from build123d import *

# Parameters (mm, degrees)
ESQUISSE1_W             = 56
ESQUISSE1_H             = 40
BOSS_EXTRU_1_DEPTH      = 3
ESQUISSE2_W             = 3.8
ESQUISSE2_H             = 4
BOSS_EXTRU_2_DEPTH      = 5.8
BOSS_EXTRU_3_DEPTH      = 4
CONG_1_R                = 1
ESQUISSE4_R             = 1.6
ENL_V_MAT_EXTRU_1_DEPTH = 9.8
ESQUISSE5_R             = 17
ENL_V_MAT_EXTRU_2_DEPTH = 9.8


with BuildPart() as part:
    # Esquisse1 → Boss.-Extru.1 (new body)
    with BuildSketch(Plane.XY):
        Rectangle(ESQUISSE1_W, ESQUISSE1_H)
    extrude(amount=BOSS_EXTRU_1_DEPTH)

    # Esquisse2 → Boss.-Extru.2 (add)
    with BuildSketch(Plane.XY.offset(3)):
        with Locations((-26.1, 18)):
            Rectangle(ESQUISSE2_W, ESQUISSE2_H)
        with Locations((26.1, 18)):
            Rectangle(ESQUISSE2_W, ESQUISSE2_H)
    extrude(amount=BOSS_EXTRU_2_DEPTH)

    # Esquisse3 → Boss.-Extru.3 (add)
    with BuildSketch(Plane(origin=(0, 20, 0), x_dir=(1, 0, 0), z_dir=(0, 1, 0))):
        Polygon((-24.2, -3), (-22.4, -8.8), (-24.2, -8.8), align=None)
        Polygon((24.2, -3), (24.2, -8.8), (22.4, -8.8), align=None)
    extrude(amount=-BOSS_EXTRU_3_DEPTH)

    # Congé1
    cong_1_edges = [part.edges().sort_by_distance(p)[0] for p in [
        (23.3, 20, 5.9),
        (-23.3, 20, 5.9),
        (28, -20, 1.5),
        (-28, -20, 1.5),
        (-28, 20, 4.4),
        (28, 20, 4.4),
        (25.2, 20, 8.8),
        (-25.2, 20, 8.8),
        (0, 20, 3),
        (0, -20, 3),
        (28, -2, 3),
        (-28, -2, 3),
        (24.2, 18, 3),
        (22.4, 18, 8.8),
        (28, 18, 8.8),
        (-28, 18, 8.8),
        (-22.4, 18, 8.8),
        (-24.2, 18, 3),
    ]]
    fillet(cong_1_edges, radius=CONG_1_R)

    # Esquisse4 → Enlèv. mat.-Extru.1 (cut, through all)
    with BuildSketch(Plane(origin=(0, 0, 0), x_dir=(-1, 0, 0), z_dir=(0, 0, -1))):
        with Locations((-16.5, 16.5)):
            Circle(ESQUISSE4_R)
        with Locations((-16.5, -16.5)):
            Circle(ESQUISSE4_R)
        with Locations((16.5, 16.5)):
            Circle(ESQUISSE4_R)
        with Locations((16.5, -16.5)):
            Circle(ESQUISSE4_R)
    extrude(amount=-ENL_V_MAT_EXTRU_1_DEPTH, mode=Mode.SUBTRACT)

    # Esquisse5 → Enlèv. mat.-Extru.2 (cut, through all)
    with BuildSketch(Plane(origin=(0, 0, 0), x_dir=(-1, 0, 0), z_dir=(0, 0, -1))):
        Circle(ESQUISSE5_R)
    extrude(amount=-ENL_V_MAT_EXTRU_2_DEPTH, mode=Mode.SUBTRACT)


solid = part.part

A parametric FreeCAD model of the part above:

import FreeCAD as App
import Part
import Sketcher
Q = App.Units.Quantity


def edges_at(feature, points):
    """Names of the edges that pass closest to the given points."""
    edges = feature.Shape.Edges
    near = lambda p: min(range(len(edges)), key=lambda i: edges[i].distToShape(Part.Vertex(*p))[0])
    return sorted({f"Edge{near(p) + 1}" for p in points})


def add_polygon(sketch, points):
    """Adds a closed chain of lines whose ends are joined by coincident constraints."""
    first, n = sketch.GeometryCount, len(points)
    for a, b in zip(points, points[1:] + points[:1]):
        sketch.addGeometry(Part.LineSegment(App.Vector(*a, 0), App.Vector(*b, 0)), False)
    for i in range(n):
        sketch.addConstraint(Sketcher.Constraint("Coincident", first + i, 2, first + (i + 1) % n, 1))

doc = App.newDocument("Part")
body = doc.addObject("PartDesign::Body", "Body")

# Sketch on XY plane
sketch1 = body.newObject("Sketcher::SketchObject", "Sketch")
sketch1.AttachmentSupport = (doc.getObject("XY_Plane"), [""])
sketch1.MapMode = "FlatFace"
add_polygon(sketch1, [(-28, 20), (-28, -20), (28, -20), (28, 20)])  # lines 0-3
sketch1.addConstraint([
    Sketcher.Constraint("Vertical", 0),
    Sketcher.Constraint("Horizontal", 1),
    Sketcher.Constraint("Vertical", 2),
    Sketcher.Constraint("Horizontal", 3),
    Sketcher.Constraint("Symmetric", 0, 2, 2, 2, -1, 1),
    Sketcher.Constraint("DistanceX", 1, 1, 1, 2, Q("56 mm")),
    Sketcher.Constraint("DistanceY", 0, 2, 0, 1, Q("40 mm")),
])
pad1 = body.newObject("PartDesign::Pad", "Pad")
pad1.Profile = sketch1
pad1.Length = 3

# Sketch on XY plane
sketch2 = body.newObject("Sketcher::SketchObject", "Sketch001")
sketch2.AttachmentSupport = (doc.getObject("XY_Plane"), [""])
sketch2.MapMode = "FlatFace"
sketch2.AttachmentOffset = App.Placement(App.Vector(0, 0, 3), App.Rotation())
add_polygon(sketch2, [(-28, 20), (-28, 16), (-24.2, 16), (-24.2, 20)])  # lines 0-3
add_polygon(sketch2, [(24.2, 20), (24.2, 16), (28, 16), (28, 20)])  # lines 4-7
sketch2.addConstraint([
    Sketcher.Constraint("Vertical", 0),
    Sketcher.Constraint("Horizontal", 1),
    Sketcher.Constraint("Vertical", 2),
    Sketcher.Constraint("Horizontal", 3),
    Sketcher.Constraint("Vertical", 4),
    Sketcher.Constraint("Horizontal", 5),
    Sketcher.Constraint("Vertical", 6),
    Sketcher.Constraint("Horizontal", 7),
    Sketcher.Constraint("Symmetric", 1, 2, 4, 2, -2),
    Sketcher.Constraint("Symmetric", 3, 2, 6, 2, -2),
    Sketcher.Constraint("DistanceY", 0, 2, 0, 1, Q("4 mm")),
    Sketcher.Constraint("DistanceX", 1, 1, 1, 2, Q("3.8 mm")),
    Sketcher.Constraint("DistanceX", 0, 2, -1, 1, Q("28 mm")),
    Sketcher.Constraint("DistanceY", -1, 1, 0, 2, Q("16 mm")),
])
pad2 = body.newObject("PartDesign::Pad", "Pad001")
pad2.Profile = sketch2
pad2.Length = 5.8

# Sketch on XZ plane
sketch3 = body.newObject("Sketcher::SketchObject", "Sketch002")
sketch3.AttachmentSupport = (doc.getObject("XZ_Plane"), [""])
sketch3.MapMode = "FlatFace"
sketch3.AttachmentOffset = App.Placement(App.Vector(0, 0, -20), App.Rotation())
add_polygon(sketch3, [(-22.4, 8.8), (-24.2, 3), (-24.2, 8.8)])  # lines 0-2
add_polygon(sketch3, [(24.2, 8.8), (24.2, 3), (22.4, 8.8)])  # lines 3-5
sketch3.addConstraint([
    Sketcher.Constraint("Vertical", 1),
    Sketcher.Constraint("Horizontal", 2),
    Sketcher.Constraint("Vertical", 3),
    Sketcher.Constraint("Horizontal", 5),
    Sketcher.Constraint("Symmetric", 0, 2, 3, 2, -2),
    Sketcher.Constraint("Symmetric", 2, 2, 4, 2, -2),
    Sketcher.Constraint("DistanceX", 2, 1, 2, 2, Q("1.8 mm")),
    Sketcher.Constraint("DistanceY", 1, 1, 1, 2, Q("5.8 mm")),
    Sketcher.Constraint("DistanceY", -1, 1, 0, 2, Q("3 mm")),
    Sketcher.Constraint("DistanceX", 0, 2, -1, 1, Q("24.2 mm")),
])
pad3 = body.newObject("PartDesign::Pad", "Pad002")
pad3.Profile = sketch3
pad3.Length = 4
doc.recompute()

fillet = body.newObject("PartDesign::Fillet", "Fillet")
fillet.Base = (pad3, edges_at(pad3, [
    (23.3, 20, 5.9),
    (-23.3, 20, 5.9),
    (28, -20, 1.5),
    (-28, -20, 1.5),
    (-28, 20, 4.4),
    (28, 20, 4.4),
    (25.2, 20, 8.8),
    (-25.2, 20, 8.8),
    (0, 20, 3),
    (0, -20, 3),
    (28, -2, 3),
    (-28, -2, 3),
    (24.2, 18, 3),
    (22.4, 18, 8.8),
    (28, 18, 8.8),
    (-28, 18, 8.8),
    (-22.4, 18, 8.8),
    (-24.2, 18, 3),
]))
fillet.Radius = 1

# Sketch on XY plane
sketch4 = body.newObject("Sketcher::SketchObject", "Sketch003")
sketch4.AttachmentSupport = (doc.getObject("XY_Plane"), [""])
sketch4.MapMode = "FlatFace"
sketch4.addGeometry([
    Part.Circle(App.Vector(16.5, 16.5, 0), App.Vector(0, 0, 1), 1.6),
    Part.Circle(App.Vector(16.5, -16.5, 0), App.Vector(0, 0, 1), 1.6),
    Part.Circle(App.Vector(-16.5, 16.5, 0), App.Vector(0, 0, 1), 1.6),
    Part.Circle(App.Vector(-16.5, -16.5, 0), App.Vector(0, 0, 1), 1.6),
], False)
sketch4.addConstraint([
    Sketcher.Constraint("Equal", 0, 1),
    Sketcher.Constraint("Equal", 1, 2),
    Sketcher.Constraint("Equal", 2, 3),
    Sketcher.Constraint("Symmetric", 1, 3, 2, 3, -1, 1),
    Sketcher.Constraint("Symmetric", 0, 3, 3, 3, -1, 1),
    Sketcher.Constraint("Symmetric", 0, 3, 2, 3, -2),
    Sketcher.Constraint("Diameter", 0, Q("3.2 mm")),
    Sketcher.Constraint("DistanceY", 1, 3, 0, 3, Q("33 mm")),
    Sketcher.Constraint("DistanceX", 2, 3, 0, 3, Q("33 mm")),
])
pocket1 = body.newObject("PartDesign::Pocket", "Pocket")
pocket1.Profile = sketch4
pocket1.Type = "ThroughAll"
pocket1.Reversed = True

# Sketch on XY plane
sketch5 = body.newObject("Sketcher::SketchObject", "Sketch004")
sketch5.AttachmentSupport = (doc.getObject("XY_Plane"), [""])
sketch5.MapMode = "FlatFace"
sketch5.addGeometry(Part.Circle(App.Vector(0, 0, 0), App.Vector(0, 0, 1), 17), False)
sketch5.addConstraint([
    Sketcher.Constraint("Coincident", 0, 3, -1, 1),
    Sketcher.Constraint("Diameter", 0, Q("34 mm")),
])
pocket2 = body.newObject("PartDesign::Pocket", "Pocket001")
pocket2.Profile = sketch5
pocket2.Type = "ThroughAll"
pocket2.Reversed = True

doc.recompute()
